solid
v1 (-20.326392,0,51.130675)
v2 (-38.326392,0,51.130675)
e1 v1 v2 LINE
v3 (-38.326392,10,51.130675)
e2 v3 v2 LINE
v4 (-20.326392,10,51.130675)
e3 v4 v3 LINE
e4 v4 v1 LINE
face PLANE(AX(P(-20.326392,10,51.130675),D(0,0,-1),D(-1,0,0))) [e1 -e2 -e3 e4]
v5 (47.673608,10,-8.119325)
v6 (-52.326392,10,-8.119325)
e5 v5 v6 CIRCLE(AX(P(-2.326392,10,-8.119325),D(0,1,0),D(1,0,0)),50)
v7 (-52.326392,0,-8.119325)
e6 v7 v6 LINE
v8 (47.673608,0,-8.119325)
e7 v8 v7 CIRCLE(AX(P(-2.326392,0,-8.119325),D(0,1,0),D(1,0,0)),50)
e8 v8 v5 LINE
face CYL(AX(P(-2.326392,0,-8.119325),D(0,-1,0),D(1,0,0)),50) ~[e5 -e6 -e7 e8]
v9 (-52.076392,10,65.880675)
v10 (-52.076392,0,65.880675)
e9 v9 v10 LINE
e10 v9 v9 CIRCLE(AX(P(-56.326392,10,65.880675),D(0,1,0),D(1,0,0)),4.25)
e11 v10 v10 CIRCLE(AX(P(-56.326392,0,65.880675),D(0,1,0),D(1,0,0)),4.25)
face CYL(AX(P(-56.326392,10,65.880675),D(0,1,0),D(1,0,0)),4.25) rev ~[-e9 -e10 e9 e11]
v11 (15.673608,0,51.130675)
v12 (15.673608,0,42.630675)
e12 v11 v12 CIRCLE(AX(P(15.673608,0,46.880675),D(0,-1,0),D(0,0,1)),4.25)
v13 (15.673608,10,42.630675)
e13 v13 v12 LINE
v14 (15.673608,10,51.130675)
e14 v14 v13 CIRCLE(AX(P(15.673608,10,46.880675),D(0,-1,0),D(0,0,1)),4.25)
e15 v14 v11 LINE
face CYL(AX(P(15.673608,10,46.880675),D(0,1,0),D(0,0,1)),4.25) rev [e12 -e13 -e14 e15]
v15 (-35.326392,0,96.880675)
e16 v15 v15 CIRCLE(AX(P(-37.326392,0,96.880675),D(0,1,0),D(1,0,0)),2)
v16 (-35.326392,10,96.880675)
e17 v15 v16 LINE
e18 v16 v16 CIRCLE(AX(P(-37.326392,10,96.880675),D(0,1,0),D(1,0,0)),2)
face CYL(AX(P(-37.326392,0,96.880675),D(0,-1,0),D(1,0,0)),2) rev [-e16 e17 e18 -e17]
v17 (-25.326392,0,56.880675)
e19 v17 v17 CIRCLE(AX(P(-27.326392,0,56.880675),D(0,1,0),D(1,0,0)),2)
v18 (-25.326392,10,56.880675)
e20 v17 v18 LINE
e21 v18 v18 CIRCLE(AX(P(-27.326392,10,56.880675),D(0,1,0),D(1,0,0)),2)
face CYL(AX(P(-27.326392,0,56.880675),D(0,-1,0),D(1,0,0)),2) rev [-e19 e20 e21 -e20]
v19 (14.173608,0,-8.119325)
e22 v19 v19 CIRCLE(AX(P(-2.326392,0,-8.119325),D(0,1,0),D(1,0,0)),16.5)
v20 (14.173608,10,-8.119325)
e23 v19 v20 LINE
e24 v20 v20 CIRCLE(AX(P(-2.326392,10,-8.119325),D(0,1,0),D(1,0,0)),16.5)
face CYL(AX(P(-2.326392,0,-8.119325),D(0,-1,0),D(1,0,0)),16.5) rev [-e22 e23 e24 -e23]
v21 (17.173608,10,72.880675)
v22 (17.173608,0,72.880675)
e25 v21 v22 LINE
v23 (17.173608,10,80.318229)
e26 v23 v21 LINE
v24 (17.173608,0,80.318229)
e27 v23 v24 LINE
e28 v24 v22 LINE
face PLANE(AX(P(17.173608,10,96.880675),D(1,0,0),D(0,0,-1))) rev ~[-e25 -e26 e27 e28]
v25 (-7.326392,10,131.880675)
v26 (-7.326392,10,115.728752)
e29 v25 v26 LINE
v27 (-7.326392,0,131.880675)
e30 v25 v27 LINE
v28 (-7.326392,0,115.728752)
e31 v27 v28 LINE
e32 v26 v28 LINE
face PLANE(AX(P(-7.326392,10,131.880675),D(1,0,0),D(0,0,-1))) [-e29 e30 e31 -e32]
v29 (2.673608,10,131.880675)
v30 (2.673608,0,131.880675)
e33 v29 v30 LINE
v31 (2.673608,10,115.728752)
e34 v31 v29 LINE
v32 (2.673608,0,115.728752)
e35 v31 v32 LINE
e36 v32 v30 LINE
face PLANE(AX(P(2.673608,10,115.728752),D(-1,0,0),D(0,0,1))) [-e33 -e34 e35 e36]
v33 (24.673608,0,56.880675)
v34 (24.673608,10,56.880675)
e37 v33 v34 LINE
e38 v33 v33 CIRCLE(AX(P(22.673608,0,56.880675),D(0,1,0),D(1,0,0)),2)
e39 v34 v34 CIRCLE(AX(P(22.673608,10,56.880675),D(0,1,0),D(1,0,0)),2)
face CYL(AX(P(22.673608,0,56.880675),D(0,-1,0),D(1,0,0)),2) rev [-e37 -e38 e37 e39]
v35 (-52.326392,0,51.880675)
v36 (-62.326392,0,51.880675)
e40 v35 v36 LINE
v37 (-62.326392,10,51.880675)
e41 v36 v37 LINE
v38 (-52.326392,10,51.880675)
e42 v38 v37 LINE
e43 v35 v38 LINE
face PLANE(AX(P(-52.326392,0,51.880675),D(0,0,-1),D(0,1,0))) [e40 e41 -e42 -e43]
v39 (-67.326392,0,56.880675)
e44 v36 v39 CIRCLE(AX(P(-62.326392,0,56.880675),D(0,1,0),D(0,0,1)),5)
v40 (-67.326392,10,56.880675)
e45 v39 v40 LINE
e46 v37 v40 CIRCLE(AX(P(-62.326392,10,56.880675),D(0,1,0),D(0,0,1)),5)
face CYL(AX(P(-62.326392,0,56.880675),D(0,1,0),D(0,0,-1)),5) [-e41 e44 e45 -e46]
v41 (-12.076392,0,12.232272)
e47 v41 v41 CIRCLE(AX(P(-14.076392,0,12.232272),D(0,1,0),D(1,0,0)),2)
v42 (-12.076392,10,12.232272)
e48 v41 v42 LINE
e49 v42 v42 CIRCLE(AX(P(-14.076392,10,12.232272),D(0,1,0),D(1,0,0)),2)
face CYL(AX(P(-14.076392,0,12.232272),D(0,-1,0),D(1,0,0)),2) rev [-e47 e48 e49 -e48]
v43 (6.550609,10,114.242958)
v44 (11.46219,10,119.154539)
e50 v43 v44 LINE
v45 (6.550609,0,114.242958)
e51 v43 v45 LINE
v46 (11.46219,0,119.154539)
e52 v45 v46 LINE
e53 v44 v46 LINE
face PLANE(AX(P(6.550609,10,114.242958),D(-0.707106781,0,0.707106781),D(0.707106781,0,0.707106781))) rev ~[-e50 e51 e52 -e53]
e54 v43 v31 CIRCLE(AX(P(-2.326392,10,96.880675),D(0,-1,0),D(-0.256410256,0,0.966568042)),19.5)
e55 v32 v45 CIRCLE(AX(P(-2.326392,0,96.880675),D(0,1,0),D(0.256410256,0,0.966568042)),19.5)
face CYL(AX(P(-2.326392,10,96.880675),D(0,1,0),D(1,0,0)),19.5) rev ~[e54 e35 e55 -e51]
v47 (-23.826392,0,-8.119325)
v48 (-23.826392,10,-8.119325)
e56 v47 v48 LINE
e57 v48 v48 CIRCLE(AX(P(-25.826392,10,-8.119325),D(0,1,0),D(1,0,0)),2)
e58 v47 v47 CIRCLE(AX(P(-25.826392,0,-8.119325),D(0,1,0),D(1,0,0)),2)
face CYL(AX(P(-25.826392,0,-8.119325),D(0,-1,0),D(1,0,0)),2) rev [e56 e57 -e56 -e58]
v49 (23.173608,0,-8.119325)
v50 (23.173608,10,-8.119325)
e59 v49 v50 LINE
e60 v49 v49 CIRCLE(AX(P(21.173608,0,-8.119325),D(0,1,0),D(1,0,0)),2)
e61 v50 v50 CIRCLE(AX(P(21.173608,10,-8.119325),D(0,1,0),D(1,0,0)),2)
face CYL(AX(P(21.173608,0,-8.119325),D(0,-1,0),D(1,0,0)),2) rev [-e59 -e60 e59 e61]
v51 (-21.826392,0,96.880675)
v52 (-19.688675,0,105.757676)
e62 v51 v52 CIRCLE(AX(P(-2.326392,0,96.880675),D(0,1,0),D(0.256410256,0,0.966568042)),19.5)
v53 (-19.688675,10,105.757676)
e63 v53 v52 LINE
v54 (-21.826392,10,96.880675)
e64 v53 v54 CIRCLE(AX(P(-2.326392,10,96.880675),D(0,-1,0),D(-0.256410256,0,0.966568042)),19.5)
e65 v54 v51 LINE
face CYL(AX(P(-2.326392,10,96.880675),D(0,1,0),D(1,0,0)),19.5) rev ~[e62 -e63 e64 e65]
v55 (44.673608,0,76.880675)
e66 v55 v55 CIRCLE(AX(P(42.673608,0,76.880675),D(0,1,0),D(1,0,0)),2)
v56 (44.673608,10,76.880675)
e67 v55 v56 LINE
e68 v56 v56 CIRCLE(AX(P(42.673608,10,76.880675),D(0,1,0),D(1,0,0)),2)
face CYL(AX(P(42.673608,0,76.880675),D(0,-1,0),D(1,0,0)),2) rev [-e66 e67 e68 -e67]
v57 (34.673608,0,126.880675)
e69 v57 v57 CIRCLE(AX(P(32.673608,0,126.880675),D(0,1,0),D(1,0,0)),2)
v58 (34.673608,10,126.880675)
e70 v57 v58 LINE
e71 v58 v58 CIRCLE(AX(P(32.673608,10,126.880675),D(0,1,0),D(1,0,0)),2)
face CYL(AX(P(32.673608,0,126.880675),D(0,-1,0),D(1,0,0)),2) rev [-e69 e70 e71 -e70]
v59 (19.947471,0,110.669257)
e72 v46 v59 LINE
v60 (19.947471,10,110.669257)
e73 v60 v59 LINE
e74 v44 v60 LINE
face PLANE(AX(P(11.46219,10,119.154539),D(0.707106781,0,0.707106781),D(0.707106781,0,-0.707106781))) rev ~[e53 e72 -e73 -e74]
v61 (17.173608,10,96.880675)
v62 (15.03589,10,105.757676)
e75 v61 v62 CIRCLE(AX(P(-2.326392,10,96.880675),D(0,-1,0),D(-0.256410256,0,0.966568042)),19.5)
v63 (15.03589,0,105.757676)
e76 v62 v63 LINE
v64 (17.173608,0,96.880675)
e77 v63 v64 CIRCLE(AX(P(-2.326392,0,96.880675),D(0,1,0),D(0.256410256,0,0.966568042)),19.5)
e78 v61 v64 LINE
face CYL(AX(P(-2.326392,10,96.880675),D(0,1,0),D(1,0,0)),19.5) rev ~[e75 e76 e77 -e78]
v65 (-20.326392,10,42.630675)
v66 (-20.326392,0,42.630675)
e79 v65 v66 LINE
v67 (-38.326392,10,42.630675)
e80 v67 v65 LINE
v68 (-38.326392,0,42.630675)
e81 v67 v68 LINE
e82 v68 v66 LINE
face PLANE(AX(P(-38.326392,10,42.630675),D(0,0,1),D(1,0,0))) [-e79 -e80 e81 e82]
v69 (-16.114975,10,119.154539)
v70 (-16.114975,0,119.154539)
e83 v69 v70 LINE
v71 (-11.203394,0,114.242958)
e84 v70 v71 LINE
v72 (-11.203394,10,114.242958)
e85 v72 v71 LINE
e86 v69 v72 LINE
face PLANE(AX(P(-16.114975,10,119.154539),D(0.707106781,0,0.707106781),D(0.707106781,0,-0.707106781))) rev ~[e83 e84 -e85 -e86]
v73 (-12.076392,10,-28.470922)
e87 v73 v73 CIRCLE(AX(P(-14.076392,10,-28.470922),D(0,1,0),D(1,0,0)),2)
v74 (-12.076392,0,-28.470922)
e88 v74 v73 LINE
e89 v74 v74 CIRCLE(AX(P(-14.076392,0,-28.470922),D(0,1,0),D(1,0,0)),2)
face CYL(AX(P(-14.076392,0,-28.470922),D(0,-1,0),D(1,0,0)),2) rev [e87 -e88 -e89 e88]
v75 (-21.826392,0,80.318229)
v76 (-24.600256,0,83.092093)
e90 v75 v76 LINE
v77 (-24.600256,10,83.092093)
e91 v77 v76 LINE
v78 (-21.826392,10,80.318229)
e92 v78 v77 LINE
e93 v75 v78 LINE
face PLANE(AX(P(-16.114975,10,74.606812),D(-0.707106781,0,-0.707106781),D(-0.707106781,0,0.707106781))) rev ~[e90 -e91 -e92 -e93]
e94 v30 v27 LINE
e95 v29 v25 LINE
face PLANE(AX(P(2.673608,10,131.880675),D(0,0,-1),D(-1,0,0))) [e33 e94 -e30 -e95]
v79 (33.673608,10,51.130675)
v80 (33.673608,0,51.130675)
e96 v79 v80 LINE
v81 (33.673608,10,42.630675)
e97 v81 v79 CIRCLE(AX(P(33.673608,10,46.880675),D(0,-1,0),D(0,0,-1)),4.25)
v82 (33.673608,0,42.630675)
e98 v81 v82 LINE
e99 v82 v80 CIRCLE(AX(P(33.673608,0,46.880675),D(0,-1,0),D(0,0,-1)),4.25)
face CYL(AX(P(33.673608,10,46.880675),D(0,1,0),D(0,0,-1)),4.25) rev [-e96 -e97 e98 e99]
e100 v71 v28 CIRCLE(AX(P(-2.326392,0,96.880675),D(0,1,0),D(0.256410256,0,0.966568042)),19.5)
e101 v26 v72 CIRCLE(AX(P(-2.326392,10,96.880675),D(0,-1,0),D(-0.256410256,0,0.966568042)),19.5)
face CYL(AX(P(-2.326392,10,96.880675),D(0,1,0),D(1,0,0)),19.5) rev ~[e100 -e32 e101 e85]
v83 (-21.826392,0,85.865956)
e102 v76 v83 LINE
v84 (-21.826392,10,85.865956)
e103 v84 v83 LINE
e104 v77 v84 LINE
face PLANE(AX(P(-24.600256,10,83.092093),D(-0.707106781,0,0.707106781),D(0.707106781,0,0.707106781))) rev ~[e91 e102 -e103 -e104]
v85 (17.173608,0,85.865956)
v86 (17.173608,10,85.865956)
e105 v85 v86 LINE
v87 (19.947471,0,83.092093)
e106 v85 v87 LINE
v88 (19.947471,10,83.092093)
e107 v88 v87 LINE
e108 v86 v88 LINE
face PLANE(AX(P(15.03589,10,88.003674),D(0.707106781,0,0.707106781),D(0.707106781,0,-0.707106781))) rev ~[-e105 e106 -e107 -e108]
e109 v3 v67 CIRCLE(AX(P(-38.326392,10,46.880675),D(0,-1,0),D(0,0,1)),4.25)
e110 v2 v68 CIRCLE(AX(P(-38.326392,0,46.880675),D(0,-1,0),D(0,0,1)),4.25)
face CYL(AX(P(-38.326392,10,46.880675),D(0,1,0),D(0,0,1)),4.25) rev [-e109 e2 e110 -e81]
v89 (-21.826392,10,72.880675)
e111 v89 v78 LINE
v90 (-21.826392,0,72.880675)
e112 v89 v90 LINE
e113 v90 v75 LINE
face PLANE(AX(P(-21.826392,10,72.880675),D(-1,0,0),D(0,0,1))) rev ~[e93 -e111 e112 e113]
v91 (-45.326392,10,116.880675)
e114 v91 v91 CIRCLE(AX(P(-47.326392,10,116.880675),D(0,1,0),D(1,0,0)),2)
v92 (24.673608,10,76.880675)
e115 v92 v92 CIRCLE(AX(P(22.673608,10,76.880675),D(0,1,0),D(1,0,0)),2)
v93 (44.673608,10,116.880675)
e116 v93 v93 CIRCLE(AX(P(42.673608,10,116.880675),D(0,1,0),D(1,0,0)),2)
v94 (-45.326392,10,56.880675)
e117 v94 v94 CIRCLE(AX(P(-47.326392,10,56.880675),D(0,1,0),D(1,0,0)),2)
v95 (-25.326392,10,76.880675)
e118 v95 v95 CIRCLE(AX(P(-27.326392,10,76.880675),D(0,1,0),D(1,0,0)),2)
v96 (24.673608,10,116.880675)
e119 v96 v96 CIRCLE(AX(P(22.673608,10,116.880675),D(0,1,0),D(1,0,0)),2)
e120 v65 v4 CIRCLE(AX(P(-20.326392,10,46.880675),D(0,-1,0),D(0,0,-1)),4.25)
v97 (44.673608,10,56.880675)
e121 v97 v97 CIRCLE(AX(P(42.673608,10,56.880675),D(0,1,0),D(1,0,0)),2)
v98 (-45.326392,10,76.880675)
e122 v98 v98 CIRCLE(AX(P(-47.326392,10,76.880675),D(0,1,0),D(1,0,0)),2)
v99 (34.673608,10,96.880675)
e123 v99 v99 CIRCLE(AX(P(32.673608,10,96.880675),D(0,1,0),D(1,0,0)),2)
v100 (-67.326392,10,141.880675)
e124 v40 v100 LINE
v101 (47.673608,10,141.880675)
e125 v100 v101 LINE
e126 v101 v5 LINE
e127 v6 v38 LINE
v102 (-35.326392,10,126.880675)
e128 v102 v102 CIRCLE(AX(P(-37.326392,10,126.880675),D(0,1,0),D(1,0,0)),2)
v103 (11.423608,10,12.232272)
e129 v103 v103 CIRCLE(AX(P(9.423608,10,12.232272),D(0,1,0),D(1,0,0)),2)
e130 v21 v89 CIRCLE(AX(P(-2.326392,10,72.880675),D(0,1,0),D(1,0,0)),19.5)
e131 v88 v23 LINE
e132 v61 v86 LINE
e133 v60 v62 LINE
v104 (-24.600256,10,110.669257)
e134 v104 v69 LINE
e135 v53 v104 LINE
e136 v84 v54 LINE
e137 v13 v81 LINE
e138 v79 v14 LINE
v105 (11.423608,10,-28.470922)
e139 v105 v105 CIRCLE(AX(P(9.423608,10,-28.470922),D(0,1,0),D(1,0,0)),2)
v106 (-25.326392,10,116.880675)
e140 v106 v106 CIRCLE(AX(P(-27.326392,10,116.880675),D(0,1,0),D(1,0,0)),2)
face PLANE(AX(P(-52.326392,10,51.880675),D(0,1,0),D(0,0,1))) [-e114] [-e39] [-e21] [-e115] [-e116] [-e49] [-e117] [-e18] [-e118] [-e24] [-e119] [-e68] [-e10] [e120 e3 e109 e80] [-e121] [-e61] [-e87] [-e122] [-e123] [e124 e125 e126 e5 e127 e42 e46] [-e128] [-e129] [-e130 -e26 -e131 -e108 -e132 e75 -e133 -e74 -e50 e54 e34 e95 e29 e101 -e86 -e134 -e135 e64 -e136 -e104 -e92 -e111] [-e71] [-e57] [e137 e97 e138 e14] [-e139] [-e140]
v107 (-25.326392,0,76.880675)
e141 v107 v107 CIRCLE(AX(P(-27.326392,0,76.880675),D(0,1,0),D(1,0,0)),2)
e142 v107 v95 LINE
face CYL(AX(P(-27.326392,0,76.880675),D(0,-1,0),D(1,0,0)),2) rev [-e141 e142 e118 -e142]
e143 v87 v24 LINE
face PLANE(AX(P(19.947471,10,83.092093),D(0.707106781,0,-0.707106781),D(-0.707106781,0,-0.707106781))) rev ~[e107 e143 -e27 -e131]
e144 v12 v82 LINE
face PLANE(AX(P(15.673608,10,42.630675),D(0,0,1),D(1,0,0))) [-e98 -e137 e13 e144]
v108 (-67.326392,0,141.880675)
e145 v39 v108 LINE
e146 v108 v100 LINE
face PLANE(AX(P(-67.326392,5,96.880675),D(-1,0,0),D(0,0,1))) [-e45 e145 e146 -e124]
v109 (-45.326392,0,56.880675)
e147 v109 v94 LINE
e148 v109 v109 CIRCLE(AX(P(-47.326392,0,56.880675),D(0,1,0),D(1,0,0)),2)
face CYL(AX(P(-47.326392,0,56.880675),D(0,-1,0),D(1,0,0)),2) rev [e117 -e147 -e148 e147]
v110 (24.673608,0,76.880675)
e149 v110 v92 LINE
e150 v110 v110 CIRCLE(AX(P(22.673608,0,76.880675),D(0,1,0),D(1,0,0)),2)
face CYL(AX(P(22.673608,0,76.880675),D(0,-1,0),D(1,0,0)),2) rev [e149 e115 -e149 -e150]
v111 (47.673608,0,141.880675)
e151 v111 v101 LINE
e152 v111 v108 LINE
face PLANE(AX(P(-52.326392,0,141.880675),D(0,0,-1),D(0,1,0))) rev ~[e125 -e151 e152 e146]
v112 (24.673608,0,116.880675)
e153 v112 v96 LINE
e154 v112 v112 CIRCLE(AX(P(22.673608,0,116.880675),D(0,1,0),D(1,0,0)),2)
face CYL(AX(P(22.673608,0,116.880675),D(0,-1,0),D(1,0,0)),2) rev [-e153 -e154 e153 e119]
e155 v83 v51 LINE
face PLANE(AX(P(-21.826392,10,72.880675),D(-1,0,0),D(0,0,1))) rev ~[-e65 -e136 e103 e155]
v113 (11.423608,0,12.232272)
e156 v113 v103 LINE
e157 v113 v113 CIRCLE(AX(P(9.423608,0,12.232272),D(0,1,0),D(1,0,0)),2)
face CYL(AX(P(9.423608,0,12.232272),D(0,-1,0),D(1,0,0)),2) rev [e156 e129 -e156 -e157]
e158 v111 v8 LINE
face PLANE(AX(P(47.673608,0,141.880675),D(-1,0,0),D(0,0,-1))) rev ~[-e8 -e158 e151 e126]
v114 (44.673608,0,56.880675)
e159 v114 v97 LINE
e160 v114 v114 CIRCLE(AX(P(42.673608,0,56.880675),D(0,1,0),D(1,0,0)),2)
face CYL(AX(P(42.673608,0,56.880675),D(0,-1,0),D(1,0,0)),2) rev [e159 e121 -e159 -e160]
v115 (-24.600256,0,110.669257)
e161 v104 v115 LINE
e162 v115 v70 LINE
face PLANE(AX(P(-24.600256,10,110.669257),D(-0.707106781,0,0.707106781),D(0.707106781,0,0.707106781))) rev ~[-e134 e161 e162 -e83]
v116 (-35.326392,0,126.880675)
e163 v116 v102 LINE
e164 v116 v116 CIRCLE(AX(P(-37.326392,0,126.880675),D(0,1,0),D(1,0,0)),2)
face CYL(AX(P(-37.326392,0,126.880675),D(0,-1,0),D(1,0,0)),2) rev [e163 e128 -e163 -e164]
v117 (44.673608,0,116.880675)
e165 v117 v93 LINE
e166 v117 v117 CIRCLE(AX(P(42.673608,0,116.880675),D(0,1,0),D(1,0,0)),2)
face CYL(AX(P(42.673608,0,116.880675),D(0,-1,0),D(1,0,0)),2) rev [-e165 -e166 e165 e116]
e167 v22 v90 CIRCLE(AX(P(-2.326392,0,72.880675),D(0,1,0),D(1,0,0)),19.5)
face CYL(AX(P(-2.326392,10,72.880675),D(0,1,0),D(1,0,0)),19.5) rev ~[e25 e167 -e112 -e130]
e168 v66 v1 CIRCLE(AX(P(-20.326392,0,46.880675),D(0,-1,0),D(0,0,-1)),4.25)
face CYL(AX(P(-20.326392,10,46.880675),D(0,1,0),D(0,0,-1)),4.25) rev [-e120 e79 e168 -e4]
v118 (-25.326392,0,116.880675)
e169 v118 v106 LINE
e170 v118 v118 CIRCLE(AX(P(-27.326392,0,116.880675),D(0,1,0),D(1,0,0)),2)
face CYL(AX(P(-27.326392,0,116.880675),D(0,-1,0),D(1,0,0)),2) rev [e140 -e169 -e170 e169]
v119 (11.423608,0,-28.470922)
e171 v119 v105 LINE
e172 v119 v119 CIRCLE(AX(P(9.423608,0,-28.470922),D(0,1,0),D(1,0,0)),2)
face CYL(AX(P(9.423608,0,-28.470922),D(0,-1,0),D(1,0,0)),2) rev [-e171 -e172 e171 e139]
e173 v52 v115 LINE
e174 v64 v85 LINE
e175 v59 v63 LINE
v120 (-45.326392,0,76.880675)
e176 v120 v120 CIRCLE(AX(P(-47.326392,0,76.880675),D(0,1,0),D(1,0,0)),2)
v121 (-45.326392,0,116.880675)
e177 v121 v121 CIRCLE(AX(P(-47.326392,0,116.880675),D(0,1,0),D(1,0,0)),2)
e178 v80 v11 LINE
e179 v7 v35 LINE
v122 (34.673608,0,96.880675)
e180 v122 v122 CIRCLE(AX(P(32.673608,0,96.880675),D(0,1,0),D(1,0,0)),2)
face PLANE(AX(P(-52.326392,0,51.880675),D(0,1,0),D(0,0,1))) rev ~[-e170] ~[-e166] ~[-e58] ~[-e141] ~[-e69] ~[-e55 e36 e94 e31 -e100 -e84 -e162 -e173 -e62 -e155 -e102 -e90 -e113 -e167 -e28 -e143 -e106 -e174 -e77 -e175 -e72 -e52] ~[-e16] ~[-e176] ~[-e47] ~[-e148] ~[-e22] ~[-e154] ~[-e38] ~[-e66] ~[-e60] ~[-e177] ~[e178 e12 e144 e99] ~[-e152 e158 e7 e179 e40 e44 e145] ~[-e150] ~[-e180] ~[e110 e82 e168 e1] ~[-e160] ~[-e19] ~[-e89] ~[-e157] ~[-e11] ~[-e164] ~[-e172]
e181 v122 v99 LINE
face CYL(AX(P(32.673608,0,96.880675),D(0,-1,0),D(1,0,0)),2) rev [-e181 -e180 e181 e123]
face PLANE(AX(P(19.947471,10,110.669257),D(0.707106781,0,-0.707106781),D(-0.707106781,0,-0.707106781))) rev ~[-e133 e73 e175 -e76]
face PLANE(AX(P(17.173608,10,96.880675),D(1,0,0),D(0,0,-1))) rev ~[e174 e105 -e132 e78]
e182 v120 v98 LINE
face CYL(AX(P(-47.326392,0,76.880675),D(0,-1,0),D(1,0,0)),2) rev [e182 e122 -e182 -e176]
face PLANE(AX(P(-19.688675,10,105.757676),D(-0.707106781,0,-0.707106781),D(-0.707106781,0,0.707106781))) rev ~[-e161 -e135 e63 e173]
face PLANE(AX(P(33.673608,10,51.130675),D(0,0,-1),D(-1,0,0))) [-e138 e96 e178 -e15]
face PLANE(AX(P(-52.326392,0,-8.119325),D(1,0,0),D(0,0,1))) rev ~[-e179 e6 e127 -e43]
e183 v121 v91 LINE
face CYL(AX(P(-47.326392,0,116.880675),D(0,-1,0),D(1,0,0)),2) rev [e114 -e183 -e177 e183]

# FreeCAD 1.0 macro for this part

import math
import FreeCAD as App
import Part
import Sketcher
from FreeCAD import Vector


def edges_at(feature, points):
    """Names of the edges that pass closest to the given points."""
    edges = feature.Shape.Edges
    near = lambda p: min(range(len(edges)), key=lambda i: edges[i].distToShape(Part.Vertex(*p))[0])
    return sorted({f"Edge{near(p) + 1}" for p in points})

doc = App.newDocument("Part")
body = doc.addObject("PartDesign::Body", "Body")

# Sketch on XZ plane
sketch1 = doc.addObject("Sketcher::SketchObject", "Sketch")
body.addObject(sketch1)
sketch1.AttachmentSupport = (doc.XZ_Plane, [""])
sketch1.MapMode = "FlatFace"
sketch1.addGeometry(Part.LineSegment(Vector(-52.326392, 141.880675, 0), Vector(47.673608, 141.880675, 0)), False)
sketch1.addGeometry(Part.LineSegment(Vector(47.673608, 141.880675, 0), Vector(47.673608, -8.119325, 0)), False)
sketch1.addGeometry(Part.ArcOfCircle(Part.Circle(Vector(-2.326392, -8.119325, 0), Vector(0, 0, 1), 50), math.radians(180), math.radians(360)), False)
sketch1.addGeometry(Part.LineSegment(Vector(-52.326392, -8.119325, 0), Vector(-52.326392, 141.880675, 0)), False)
sketch1.addGeometry(Part.Circle(Vector(-47.326392, 116.880675, 0), Vector(0, 0, 1), 2), False)
sketch1.addGeometry(Part.Circle(Vector(-37.326392, 126.880675, 0), Vector(0, 0, 1), 2), False)
sketch1.addGeometry(Part.Circle(Vector(-27.326392, 116.880675, 0), Vector(0, 0, 1), 2), False)
sketch1.addGeometry(Part.Circle(Vector(-37.326392, 96.880675, 0), Vector(0, 0, 1), 2), False)
sketch1.addGeometry(Part.Circle(Vector(-47.326392, 76.880675, 0), Vector(0, 0, 1), 2), False)
sketch1.addGeometry(Part.Circle(Vector(-27.326392, 76.880675, 0), Vector(0, 0, 1), 2), False)
sketch1.addGeometry(Part.Circle(Vector(-47.326392, 56.880675, 0), Vector(0, 0, 1), 2), False)
sketch1.addGeometry(Part.Circle(Vector(-27.326392, 56.880675, 0), Vector(0, 0, 1), 2), False)
sketch1.addGeometry(Part.Circle(Vector(32.673608, 126.880675, 0), Vector(0, 0, 1), 2), False)
sketch1.addGeometry(Part.Circle(Vector(22.673608, 116.880675, 0), Vector(0, 0, 1), 2), False)
sketch1.addGeometry(Part.Circle(Vector(42.673608, 116.880675, 0), Vector(0, 0, 1), 2), False)
sketch1.addGeometry(Part.Circle(Vector(32.673608, 96.880675, 0), Vector(0, 0, 1), 2), False)
sketch1.addGeometry(Part.Circle(Vector(22.673608, 76.880675, 0), Vector(0, 0, 1), 2), False)
sketch1.addGeometry(Part.Circle(Vector(42.673608, 76.880675, 0), Vector(0, 0, 1), 2), False)
sketch1.addGeometry(Part.Circle(Vector(22.673608, 56.880675, 0), Vector(0, 0, 1), 2), False)
sketch1.addGeometry(Part.Circle(Vector(42.673608, 56.880675, 0), Vector(0, 0, 1), 2), False)
sketch1.addGeometry(Part.Circle(Vector(-14.076392, 12.232272, 0), Vector(0, 0, 1), 2), False)
sketch1.addGeometry(Part.Circle(Vector(-25.826392, -8.119325, 0), Vector(0, 0, 1), 2), False)
sketch1.addGeometry(Part.Circle(Vector(-14.076392, -28.470922, 0), Vector(0, 0, 1), 2), False)
sketch1.addGeometry(Part.Circle(Vector(9.423608, 12.232272, 0), Vector(0, 0, 1), 2), False)
sketch1.addGeometry(Part.Circle(Vector(-2.326392, -8.119325, 0), Vector(0, 0, 1), 16.5), False)
sketch1.addGeometry(Part.Circle(Vector(9.423608, -28.470922, 0), Vector(0, 0, 1), 2), False)
sketch1.addGeometry(Part.Circle(Vector(21.173608, -8.119325, 0), Vector(0, 0, 1), 2), False)
sketch1.addConstraint(Sketcher.Constraint("Coincident", 0, 2, 1, 1))
sketch1.addConstraint(Sketcher.Constraint("Tangent", 1, 2, 2, 2))
sketch1.addConstraint(Sketcher.Constraint("Tangent", 2, 1, 3, 1))
sketch1.addConstraint(Sketcher.Constraint("Coincident", 3, 2, 0, 1))
sketch1.addConstraint(Sketcher.Constraint("Horizontal", 0))
sketch1.addConstraint(Sketcher.Constraint("Vertical", 1))
sketch1.addConstraint(Sketcher.Constraint("Vertical", 3))
sketch1.addConstraint(Sketcher.Constraint("Coincident", 24, 3, 2, 3))
sketch1.addConstraint(Sketcher.Constraint("Equal", 4, 5))
sketch1.addConstraint(Sketcher.Constraint("Equal", 5, 6))
sketch1.addConstraint(Sketcher.Constraint("Equal", 6, 7))
sketch1.addConstraint(Sketcher.Constraint("Equal", 7, 8))
sketch1.addConstraint(Sketcher.Constraint("Equal", 8, 9))
sketch1.addConstraint(Sketcher.Constraint("Equal", 9, 10))
sketch1.addConstraint(Sketcher.Constraint("Equal", 10, 11))
sketch1.addConstraint(Sketcher.Constraint("Equal", 11, 12))
sketch1.addConstraint(Sketcher.Constraint("Equal", 12, 13))
sketch1.addConstraint(Sketcher.Constraint("Equal", 13, 14))
sketch1.addConstraint(Sketcher.Constraint("Equal", 14, 15))
sketch1.addConstraint(Sketcher.Constraint("Equal", 15, 16))
sketch1.addConstraint(Sketcher.Constraint("Equal", 16, 17))
sketch1.addConstraint(Sketcher.Constraint("Equal", 17, 18))
sketch1.addConstraint(Sketcher.Constraint("Equal", 18, 19))
sketch1.addConstraint(Sketcher.Constraint("Equal", 19, 20))
sketch1.addConstraint(Sketcher.Constraint("Equal", 20, 21))
sketch1.addConstraint(Sketcher.Constraint("Equal", 21, 22))
sketch1.addConstraint(Sketcher.Constraint("Equal", 22, 23))
sketch1.addConstraint(Sketcher.Constraint("Equal", 23, 25))
sketch1.addConstraint(Sketcher.Constraint("Equal", 25, 26))
sketch1.addConstraint(Sketcher.Constraint("Horizontal", 4, 3, 6, 3))
sketch1.addConstraint(Sketcher.Constraint("Horizontal", 8, 3, 9, 3))
sketch1.addConstraint(Sketcher.Constraint("Horizontal", 10, 3, 11, 3))
sketch1.addConstraint(Sketcher.Constraint("Horizontal", 5, 3, 12, 3))
sketch1.addConstraint(Sketcher.Constraint("Horizontal", 6, 3, 13, 3))
sketch1.addConstraint(Sketcher.Constraint("Horizontal", 13, 3, 14, 3))
sketch1.addConstraint(Sketcher.Constraint("Horizontal", 7, 3, 15, 3))
sketch1.addConstraint(Sketcher.Constraint("Horizontal", 9, 3, 16, 3))
sketch1.addConstraint(Sketcher.Constraint("Horizontal", 16, 3, 17, 3))
sketch1.addConstraint(Sketcher.Constraint("Horizontal", 11, 3, 18, 3))
sketch1.addConstraint(Sketcher.Constraint("Horizontal", 18, 3, 19, 3))
sketch1.addConstraint(Sketcher.Constraint("Horizontal", 2, 3, 21, 3))
sketch1.addConstraint(Sketcher.Constraint("Horizontal", 20, 3, 23, 3))
sketch1.addConstraint(Sketcher.Constraint("Horizontal", 22, 3, 25, 3))
sketch1.addConstraint(Sketcher.Constraint("Horizontal", 24, 3, 26, 3))
sketch1.addConstraint(Sketcher.Constraint("Vertical", 5, 3, 7, 3))
sketch1.addConstraint(Sketcher.Constraint("Vertical", 4, 3, 8, 3))
sketch1.addConstraint(Sketcher.Constraint("Vertical", 6, 3, 9, 3))
sketch1.addConstraint(Sketcher.Constraint("Vertical", 8, 3, 10, 3))
sketch1.addConstraint(Sketcher.Constraint("Vertical", 9, 3, 11, 3))
sketch1.addConstraint(Sketcher.Constraint("Vertical", 12, 3, 15, 3))
sketch1.addConstraint(Sketcher.Constraint("Vertical", 13, 3, 16, 3))
sketch1.addConstraint(Sketcher.Constraint("Vertical", 14, 3, 17, 3))
sketch1.addConstraint(Sketcher.Constraint("Vertical", 16, 3, 18, 3))
sketch1.addConstraint(Sketcher.Constraint("Vertical", 17, 3, 19, 3))
sketch1.addConstraint(Sketcher.Constraint("Vertical", 20, 3, 22, 3))
sketch1.addConstraint(Sketcher.Constraint("Vertical", 23, 3, 25, 3))
sketch1.addConstraint(Sketcher.Constraint("Diameter", 4, 4.0))
sketch1.addConstraint(Sketcher.Constraint("Diameter", 24, 33.0))
sketch1.addConstraint(Sketcher.Constraint("Radius", 2, 50.0))
sketch1.addConstraint(Sketcher.Constraint("DistanceY", 1, 2, 1, 1, 150.0))
sketch1.addConstraint(Sketcher.Constraint("DistanceX", 4, 3, 2, 3, 45.0))
sketch1.addConstraint(Sketcher.Constraint("DistanceY", 2, 3, 4, 3, 125.0))
sketch1.addConstraint(Sketcher.Constraint("DistanceX", 4, 3, 5, 3, 10.0))
sketch1.addConstraint(Sketcher.Constraint("DistanceY", 4, 3, 5, 3, 10.0))
sketch1.addConstraint(Sketcher.Constraint("DistanceX", 5, 3, 6, 3, 10.0))
sketch1.addConstraint(Sketcher.Constraint("DistanceY", 7, 3, 4, 3, 20.0))
sketch1.addConstraint(Sketcher.Constraint("DistanceY", 8, 3, 7, 3, 20.0))
sketch1.addConstraint(Sketcher.Constraint("DistanceY", 10, 3, 8, 3, 20.0))
sketch1.addConstraint(Sketcher.Constraint("DistanceX", 6, 3, 12, 3, 60.0))
sketch1.addConstraint(Sketcher.Constraint("DistanceX", 13, 3, 12, 3, 10.0))
sketch1.addConstraint(Sketcher.Constraint("DistanceX", 12, 3, 14, 3, 10.0))
sketch1.addConstraint(Sketcher.Constraint("DistanceX", 21, 3, 2, 3, 23.5))
sketch1.addConstraint(Sketcher.Constraint("DistanceX", 20, 3, 23, 3, 23.5))
sketch1.addConstraint(Sketcher.Constraint("DistanceX", 2, 3, 26, 3, 23.5))
sketch1.addConstraint(Sketcher.Constraint("DistanceX", 20, 3, 2, 3, 11.75))
sketch1.addConstraint(Sketcher.Constraint("DistanceY", 22, 3, -1, 1, 28.470922))
sketch1.addConstraint(Sketcher.Constraint("DistanceX", 2, 3, -1, 1, 2.326392))
sketch1.addConstraint(Sketcher.Constraint("DistanceY", 2, 3, -1, 1, 8.119325))
sketch1.addConstraint(Sketcher.Constraint("DistanceY", -1, 1, 20, 3, 12.232272))
pad1 = doc.addObject("PartDesign::Pad", "Pad")
body.addObject(pad1)
pad1.Profile = sketch1
pad1.Length = 10
pad1.Reversed = True

# Sketch on XZ plane
sketch2 = doc.addObject("Sketcher::SketchObject", "Sketch001")
body.addObject(sketch2)
sketch2.AttachmentSupport = (doc.XZ_Plane, [""])
sketch2.MapMode = "FlatFace"
sketch2.AttachmentOffset = App.Placement(Vector(0, 0, -10), App.Rotation())
sketch2.addGeometry(Part.Circle(Vector(-2.326392, 96.880675, 0), Vector(0, 0, 1), 19.5), False)
sketch2.addConstraint(Sketcher.Constraint("Diameter", 0, 39.0))
sketch2.addConstraint(Sketcher.Constraint("DistanceX", 0, 3, -1, 1, 2.326392))
sketch2.addConstraint(Sketcher.Constraint("DistanceY", -1, 1, 0, 3, 96.880675))
pocket1 = doc.addObject("PartDesign::Pocket", "Pocket")
body.addObject(pocket1)
pocket1.Profile = sketch2
pocket1.Length = 10
pocket1.Reversed = True

# Sketch on XZ plane
sketch3 = doc.addObject("Sketcher::SketchObject", "Sketch002")
body.addObject(sketch3)
sketch3.AttachmentSupport = (doc.XZ_Plane, [""])
sketch3.MapMode = "FlatFace"
sketch3.AttachmentOffset = App.Placement(Vector(0, 0, -10), App.Rotation())
sketch3.addGeometry(Part.LineSegment(Vector(-7.326392, 115.728752, 0), Vector(-7.326392, 131.880675, 0)), False)
sketch3.addGeometry(Part.LineSegment(Vector(-7.326392, 131.880675, 0), Vector(2.673608, 131.880675, 0)), False)
sketch3.addGeometry(Part.LineSegment(Vector(2.673608, 131.880675, 0), Vector(2.673608, 115.728752, 0)), False)
sketch3.addGeometry(Part.ArcOfCircle(Part.Circle(Vector(-2.326392, 96.880675, 0), Vector(0, 0, 1), 19.5), math.radians(75.142834), math.radians(104.857166)), False)
sketch3.addConstraint(Sketcher.Constraint("Coincident", 0, 2, 1, 1))
sketch3.addConstraint(Sketcher.Constraint("Coincident", 1, 2, 2, 1))
sketch3.addConstraint(Sketcher.Constraint("Coincident", 2, 2, 3, 1))
sketch3.addConstraint(Sketcher.Constraint("Coincident", 3, 2, 0, 1))
sketch3.addConstraint(Sketcher.Constraint("Vertical", 0))
sketch3.addConstraint(Sketcher.Constraint("Horizontal", 1))
sketch3.addConstraint(Sketcher.Constraint("Vertical", 2))
sketch3.addConstraint(Sketcher.Constraint("Horizontal", 2, 2, 3, 2))
sketch3.addConstraint(Sketcher.Constraint("Radius", 3, 19.5))
sketch3.addConstraint(Sketcher.Constraint("DistanceX", 1, 1, 1, 2, 10.0))
sketch3.addConstraint(Sketcher.Constraint("DistanceY", 3, 3, 0, 2, 35.0))
sketch3.addConstraint(Sketcher.Constraint("DistanceY", -1, 1, 2, 2, 115.728752))
sketch3.addConstraint(Sketcher.Constraint("DistanceX", 3, 3, -1, 1, 2.326392))
pocket2 = doc.addObject("PartDesign::Pocket", "Pocket001")
body.addObject(pocket2)
pocket2.Profile = sketch3
pocket2.Length = 10
pocket2.Reversed = True

# Sketch on XZ plane
sketch4 = doc.addObject("Sketcher::SketchObject", "Sketch003")
body.addObject(sketch4)
sketch4.AttachmentSupport = (doc.XZ_Plane, [""])
sketch4.MapMode = "FlatFace"
sketch4.AttachmentOffset = App.Placement(Vector(0, 0, -10), App.Rotation())
sketch4.addGeometry(Part.ArcOfCircle(Part.Circle(Vector(-2.326392, 96.880675, 0), Vector(0, 0, 1), 19.5), math.radians(-152.920213), math.radians(-117.079787)), False)
sketch4.addGeometry(Part.LineSegment(Vector(-11.203394, 79.518393, 0), Vector(-16.114975, 74.606812, 0)), False)
sketch4.addGeometry(Part.LineSegment(Vector(-16.114975, 74.606812, 0), Vector(-24.600256, 83.092093, 0)), False)
sketch4.addGeometry(Part.LineSegment(Vector(-24.600256, 83.092093, 0), Vector(-19.688675, 88.003674, 0)), False)
sketch4.addGeometry(Part.LineSegment(Vector(11.46219, 74.606812, 0), Vector(6.550609, 79.518393, 0)), False)
sketch4.addGeometry(Part.ArcOfCircle(Part.Circle(Vector(-2.326392, 96.880675, 0), Vector(0, 0, 1), 19.5), math.radians(-62.920213), math.radians(-27.079787)), False)
sketch4.addGeometry(Part.LineSegment(Vector(15.03589, 88.003674, 0), Vector(19.947471, 83.092093, 0)), False)
sketch4.addGeometry(Part.LineSegment(Vector(19.947471, 83.092093, 0), Vector(11.46219, 74.606812, 0)), False)
sketch4.addGeometry(Part.LineSegment(Vector(19.947471, 110.669257, 0), Vector(15.03589, 105.757676, 0)), False)
sketch4.addGeometry(Part.ArcOfCircle(Part.Circle(Vector(-2.326392, 96.880675, 0), Vector(0, 0, 1), 19.5), math.radians(27.079787), math.radians(62.920213)), False)
sketch4.addGeometry(Part.LineSegment(Vector(6.550609, 114.242958, 0), Vector(11.46219, 119.154539, 0)), False)
sketch4.addGeometry(Part.LineSegment(Vector(11.46219, 119.154539, 0), Vector(19.947471, 110.669257, 0)), False)
sketch4.addGeometry(Part.ArcOfCircle(Part.Circle(Vector(-2.326392, 96.880675, 0), Vector(0, 0, 1), 19.5), math.radians(117.079787), math.radians(152.920213)), False)
sketch4.addGeometry(Part.LineSegment(Vector(-19.688675, 105.757676, 0), Vector(-24.600256, 110.669257, 0)), False)
sketch4.addGeometry(Part.LineSegment(Vector(-24.600256, 110.669257, 0), Vector(-16.114975, 119.154539, 0)), False)
sketch4.addGeometry(Part.LineSegment(Vector(-16.114975, 119.154539, 0), Vector(-11.203394, 114.242958, 0)), False)
sketch4.addConstraint(Sketcher.Constraint("Coincident", 0, 2, 1, 1))
sketch4.addConstraint(Sketcher.Constraint("Coincident", 1, 2, 2, 1))
sketch4.addConstraint(Sketcher.Constraint("Coincident", 2, 2, 3, 1))
sketch4.addConstraint(Sketcher.Constraint("Coincident", 3, 2, 0, 1))
sketch4.addConstraint(Sketcher.Constraint("Coincident", 4, 2, 5, 1))
sketch4.addConstraint(Sketcher.Constraint("Coincident", 5, 2, 6, 1))
sketch4.addConstraint(Sketcher.Constraint("Coincident", 6, 2, 7, 1))
sketch4.addConstraint(Sketcher.Constraint("Coincident", 7, 2, 4, 1))
sketch4.addConstraint(Sketcher.Constraint("Coincident", 8, 2, 9, 1))
sketch4.addConstraint(Sketcher.Constraint("Coincident", 9, 2, 10, 1))
sketch4.addConstraint(Sketcher.Constraint("Coincident", 10, 2, 11, 1))
sketch4.addConstraint(Sketcher.Constraint("Coincident", 11, 2, 8, 1))
sketch4.addConstraint(Sketcher.Constraint("Coincident", 12, 2, 13, 1))
sketch4.addConstraint(Sketcher.Constraint("Coincident", 13, 2, 14, 1))
sketch4.addConstraint(Sketcher.Constraint("Coincident", 14, 2, 15, 1))
sketch4.addConstraint(Sketcher.Constraint("Coincident", 15, 2, 12, 1))
sketch4.addConstraint(Sketcher.Constraint("Coincident", 5, 3, 0, 3))
sketch4.addConstraint(Sketcher.Constraint("Coincident", 9, 3, 0, 3))
sketch4.addConstraint(Sketcher.Constraint("Coincident", 12, 3, 0, 3))
sketch4.addConstraint(Sketcher.Constraint("Equal", 0, 5))
sketch4.addConstraint(Sketcher.Constraint("Equal", 5, 9))
sketch4.addConstraint(Sketcher.Constraint("Equal", 9, 12))
sketch4.addConstraint(Sketcher.Constraint("Perpendicular", 1, 2))
sketch4.addConstraint(Sketcher.Constraint("Perpendicular", 2, 3))
sketch4.addConstraint(Sketcher.Constraint("Perpendicular", 3, 4))
sketch4.addConstraint(Sketcher.Constraint("Parallel", 4, 6))
sketch4.addConstraint(Sketcher.Constraint("Perpendicular", 6, 7))
sketch4.addConstraint(Sketcher.Constraint("Parallel", 7, 8))
sketch4.addConstraint(Sketcher.Constraint("Parallel", 8, 10))
sketch4.addConstraint(Sketcher.Constraint("Perpendicular", 10, 11))
sketch4.addConstraint(Sketcher.Constraint("Parallel", 11, 13))
sketch4.addConstraint(Sketcher.Constraint("Perpendicular", 13, 14))
sketch4.addConstraint(Sketcher.Constraint("Perpendicular", 14, 15))
sketch4.addConstraint(Sketcher.Constraint("Horizontal", 0, 2, 4, 2))
sketch4.addConstraint(Sketcher.Constraint("Horizontal", 3, 2, 5, 2))
sketch4.addConstraint(Sketcher.Constraint("Horizontal", 2, 2, 6, 2))
sketch4.addConstraint(Sketcher.Constraint("Horizontal", 1, 2, 7, 2))
sketch4.addConstraint(Sketcher.Constraint("Horizontal", 8, 2, 12, 2))
sketch4.addConstraint(Sketcher.Constraint("Horizontal", 11, 2, 13, 2))
sketch4.addConstraint(Sketcher.Constraint("Horizontal", 10, 2, 14, 2))
sketch4.addConstraint(Sketcher.Constraint("Vertical", 5, 2, 8, 2))
sketch4.addConstraint(Sketcher.Constraint("Vertical", 4, 2, 9, 2))
sketch4.addConstraint(Sketcher.Constraint("Vertical", 7, 2, 10, 2))
sketch4.addConstraint(Sketcher.Constraint("Equal", 1, 3))
sketch4.addConstraint(Sketcher.Constraint("Radius", 0, 19.5))
sketch4.addConstraint(Sketcher.Constraint("Distance", 2, 12.0))
sketch4.addConstraint(Sketcher.Constraint("DistanceY", 0, 2, 2, 2, 3.5737))
sketch4.addConstraint(Sketcher.Constraint("DistanceY", -1, 1, 1, 2, 74.606812))
sketch4.addConstraint(Sketcher.Constraint("DistanceX", -1, 1, 4, 2, 6.550609))
pocket3 = doc.addObject("PartDesign::Pocket", "Pocket002")
body.addObject(pocket3)
pocket3.Profile = sketch4
pocket3.Length = 10
pocket3.Reversed = True

# Sketch on XZ plane
sketch5 = doc.addObject("Sketcher::SketchObject", "Sketch004")
body.addObject(sketch5)
sketch5.AttachmentSupport = (doc.XZ_Plane, [""])
sketch5.MapMode = "FlatFace"
sketch5.AttachmentOffset = App.Placement(Vector(0, 0, -10), App.Rotation())
sketch5.addGeometry(Part.LineSegment(Vector(-21.826392, 96.880675, 0), Vector(17.173608, 96.880675, 0)), False)
sketch5.addGeometry(Part.LineSegment(Vector(17.173608, 96.880675, 0), Vector(17.173608, 72.880675, 0)), False)
sketch5.addGeometry(Part.ArcOfCircle(Part.Circle(Vector(-2.326392, 72.880675, 0), Vector(0, 0, 1), 19.5), math.radians(180), math.radians(360)), False)
sketch5.addGeometry(Part.LineSegment(Vector(-21.826392, 72.880675, 0), Vector(-21.826392, 96.880675, 0)), False)
sketch5.addConstraint(Sketcher.Constraint("Coincident", 0, 2, 1, 1))
sketch5.addConstraint(Sketcher.Constraint("Tangent", 1, 2, 2, 2))
sketch5.addConstraint(Sketcher.Constraint("Tangent", 2, 1, 3, 1))
sketch5.addConstraint(Sketcher.Constraint("Coincident", 3, 2, 0, 1))
sketch5.addConstraint(Sketcher.Constraint("Horizontal", 0))
sketch5.addConstraint(Sketcher.Constraint("Vertical", 1))
sketch5.addConstraint(Sketcher.Constraint("Vertical", 3))
sketch5.addConstraint(Sketcher.Constraint("Radius", 2, 19.5))
sketch5.addConstraint(Sketcher.Constraint("DistanceY", 1, 2, 1, 1, 24.0))
sketch5.addConstraint(Sketcher.Constraint("DistanceX", 2, 3, -1, 1, 2.326392))
sketch5.addConstraint(Sketcher.Constraint("DistanceY", -1, 1, 2, 3, 72.880675))
pocket4 = doc.addObject("PartDesign::Pocket", "Pocket003")
body.addObject(pocket4)
pocket4.Profile = sketch5
pocket4.Length = 10
pocket4.Reversed = True

# Sketch on YZ plane
sketch6 = doc.addObject("Sketcher::SketchObject", "Sketch005")
body.addObject(sketch6)
sketch6.AttachmentSupport = (doc.YZ_Plane, [""])
sketch6.MapMode = "FlatFace"
sketch6.AttachmentOffset = App.Placement(Vector(0, 0, -52.326392), App.Rotation())
sketch6.addGeometry(Part.LineSegment(Vector(10, 51.880675, 0), Vector(0, 51.880675, 0)), False)
sketch6.addGeometry(Part.LineSegment(Vector(0, 51.880675, 0), Vector(0, 141.880675, 0)), False)
sketch6.addGeometry(Part.LineSegment(Vector(0, 141.880675, 0), Vector(10, 141.880675, 0)), False)
sketch6.addGeometry(Part.LineSegment(Vector(10, 141.880675, 0), Vector(10, 51.880675, 0)), False)
sketch6.addConstraint(Sketcher.Constraint("Coincident", 0, 2, 1, 1))
sketch6.addConstraint(Sketcher.Constraint("Coincident", 1, 2, 2, 1))
sketch6.addConstraint(Sketcher.Constraint("Coincident", 2, 2, 3, 1))
sketch6.addConstraint(Sketcher.Constraint("Coincident", 3, 2, 0, 1))
sketch6.addConstraint(Sketcher.Constraint("Horizontal", 0))
sketch6.addConstraint(Sketcher.Constraint("Vertical", 1))
sketch6.addConstraint(Sketcher.Constraint("Horizontal", 2))
sketch6.addConstraint(Sketcher.Constraint("Vertical", 3))
sketch6.addConstraint(Sketcher.Constraint("PointOnObject", 0, 2, -2))
sketch6.addConstraint(Sketcher.Constraint("DistanceX", 0, 2, 0, 1, 10.0))
sketch6.addConstraint(Sketcher.Constraint("DistanceY", 1, 1, 1, 2, 90.0))
sketch6.addConstraint(Sketcher.Constraint("DistanceY", -1, 1, 0, 2, 51.880675))
pad2 = doc.addObject("PartDesign::Pad", "Pad001")
body.addObject(pad2)
pad2.Profile = sketch6
pad2.Length = 15
pad2.Reversed = True
doc.recompute()

fillet = doc.addObject("PartDesign::Fillet", "Fillet")
body.addObject(fillet)
fillet.Base = (pad2, edges_at(pad2, [(-67.326, 5, 51.881)]))
fillet.Radius = 5

# Sketch on XZ plane
sketch7 = doc.addObject("Sketcher::SketchObject", "Sketch006")
body.addObject(sketch7)
sketch7.AttachmentSupport = (doc.XZ_Plane, [""])
sketch7.MapMode = "FlatFace"
sketch7.AttachmentOffset = App.Placement(Vector(0, 0, -10), App.Rotation())
sketch7.addGeometry(Part.Circle(Vector(-56.326392, 65.880675, 0), Vector(0, 0, 1), 4.25), False)
sketch7.addConstraint(Sketcher.Constraint("Diameter", 0, 8.5))
sketch7.addConstraint(Sketcher.Constraint("DistanceX", 0, 3, -1, 1, 56.326392))
sketch7.addConstraint(Sketcher.Constraint("DistanceY", -1, 1, 0, 3, 65.880675))
pocket5 = doc.addObject("PartDesign::Pocket", "Pocket004")
body.addObject(pocket5)
pocket5.Profile = sketch7
pocket5.Length = 10
pocket5.Reversed = True

# Sketch on XZ plane
sketch8 = doc.addObject("Sketcher::SketchObject", "Sketch007")
body.addObject(sketch8)
sketch8.AttachmentSupport = (doc.XZ_Plane, [""])
sketch8.MapMode = "FlatFace"
sketch8.AttachmentOffset = App.Placement(Vector(0, 0, -10), App.Rotation())
sketch8.addGeometry(Part.LineSegment(Vector(33.673608, 42.630675, 0), Vector(15.673608, 42.630675, 0)), False)
sketch8.addGeometry(Part.ArcOfCircle(Part.Circle(Vector(15.673608, 46.880675, 0), Vector(0, 0, 1), 4.25), math.radians(90), math.radians(270)), False)
sketch8.addGeometry(Part.LineSegment(Vector(15.673608, 51.130675, 0), Vector(33.673608, 51.130675, 0)), False)
sketch8.addGeometry(Part.ArcOfCircle(Part.Circle(Vector(33.673608, 46.880675, 0), Vector(0, 0, 1), 4.25), math.radians(-90), math.radians(90)), False)
sketch8.addGeometry(Part.LineSegment(Vector(-20.326392, 42.630675, 0), Vector(-38.326392, 42.630675, 0)), False)
sketch8.addGeometry(Part.ArcOfCircle(Part.Circle(Vector(-38.326392, 46.880675, 0), Vector(0, 0, 1), 4.25), math.radians(90), math.radians(270)), False)
sketch8.addGeometry(Part.LineSegment(Vector(-38.326392, 51.130675, 0), Vector(-20.326392, 51.130675, 0)), False)
sketch8.addGeometry(Part.ArcOfCircle(Part.Circle(Vector(-20.326392, 46.880675, 0), Vector(0, 0, 1), 4.25), math.radians(-90), math.radians(90)), False)
sketch8.addConstraint(Sketcher.Constraint("Tangent", 0, 2, 1, 2))
sketch8.addConstraint(Sketcher.Constraint("Tangent", 1, 1, 2, 1))
sketch8.addConstraint(Sketcher.Constraint("Tangent", 2, 2, 3, 2))
sketch8.addConstraint(Sketcher.Constraint("Tangent", 3, 1, 0, 1))
sketch8.addConstraint(Sketcher.Constraint("Tangent", 4, 2, 5, 2))
sketch8.addConstraint(Sketcher.Constraint("Tangent", 5, 1, 6, 1))
sketch8.addConstraint(Sketcher.Constraint("Tangent", 6, 2, 7, 2))
sketch8.addConstraint(Sketcher.Constraint("Tangent", 7, 1, 4, 1))
sketch8.addConstraint(Sketcher.Constraint("Horizontal", 0))
sketch8.addConstraint(Sketcher.Constraint("Horizontal", 2))
sketch8.addConstraint(Sketcher.Constraint("Horizontal", 4))
sketch8.addConstraint(Sketcher.Constraint("Horizontal", 6))
sketch8.addConstraint(Sketcher.Constraint("Equal", 3, 5))
sketch8.addConstraint(Sketcher.Constraint("Horizontal", 3, 3, 5, 3))
sketch8.addConstraint(Sketcher.Constraint("Equal", 2, 4))
sketch8.addConstraint(Sketcher.Constraint("DistanceX", 0, 2, 0, 1, 18.0))
sketch8.addConstraint(Sketcher.Constraint("Radius", 1, 4.25))
sketch8.addConstraint(Sketcher.Constraint("DistanceX", 5, 3, 1, 3, 54.0))
sketch8.addConstraint(Sketcher.Constraint("DistanceX", -1, 1, 1, 3, 15.673608))
sketch8.addConstraint(Sketcher.Constraint("DistanceY", -1, 1, 1, 3, 46.880675))
pocket6 = doc.addObject("PartDesign::Pocket", "Pocket005")
body.addObject(pocket6)
pocket6.Profile = sketch8
pocket6.Length = 10
pocket6.Reversed = True

doc.recompute()
